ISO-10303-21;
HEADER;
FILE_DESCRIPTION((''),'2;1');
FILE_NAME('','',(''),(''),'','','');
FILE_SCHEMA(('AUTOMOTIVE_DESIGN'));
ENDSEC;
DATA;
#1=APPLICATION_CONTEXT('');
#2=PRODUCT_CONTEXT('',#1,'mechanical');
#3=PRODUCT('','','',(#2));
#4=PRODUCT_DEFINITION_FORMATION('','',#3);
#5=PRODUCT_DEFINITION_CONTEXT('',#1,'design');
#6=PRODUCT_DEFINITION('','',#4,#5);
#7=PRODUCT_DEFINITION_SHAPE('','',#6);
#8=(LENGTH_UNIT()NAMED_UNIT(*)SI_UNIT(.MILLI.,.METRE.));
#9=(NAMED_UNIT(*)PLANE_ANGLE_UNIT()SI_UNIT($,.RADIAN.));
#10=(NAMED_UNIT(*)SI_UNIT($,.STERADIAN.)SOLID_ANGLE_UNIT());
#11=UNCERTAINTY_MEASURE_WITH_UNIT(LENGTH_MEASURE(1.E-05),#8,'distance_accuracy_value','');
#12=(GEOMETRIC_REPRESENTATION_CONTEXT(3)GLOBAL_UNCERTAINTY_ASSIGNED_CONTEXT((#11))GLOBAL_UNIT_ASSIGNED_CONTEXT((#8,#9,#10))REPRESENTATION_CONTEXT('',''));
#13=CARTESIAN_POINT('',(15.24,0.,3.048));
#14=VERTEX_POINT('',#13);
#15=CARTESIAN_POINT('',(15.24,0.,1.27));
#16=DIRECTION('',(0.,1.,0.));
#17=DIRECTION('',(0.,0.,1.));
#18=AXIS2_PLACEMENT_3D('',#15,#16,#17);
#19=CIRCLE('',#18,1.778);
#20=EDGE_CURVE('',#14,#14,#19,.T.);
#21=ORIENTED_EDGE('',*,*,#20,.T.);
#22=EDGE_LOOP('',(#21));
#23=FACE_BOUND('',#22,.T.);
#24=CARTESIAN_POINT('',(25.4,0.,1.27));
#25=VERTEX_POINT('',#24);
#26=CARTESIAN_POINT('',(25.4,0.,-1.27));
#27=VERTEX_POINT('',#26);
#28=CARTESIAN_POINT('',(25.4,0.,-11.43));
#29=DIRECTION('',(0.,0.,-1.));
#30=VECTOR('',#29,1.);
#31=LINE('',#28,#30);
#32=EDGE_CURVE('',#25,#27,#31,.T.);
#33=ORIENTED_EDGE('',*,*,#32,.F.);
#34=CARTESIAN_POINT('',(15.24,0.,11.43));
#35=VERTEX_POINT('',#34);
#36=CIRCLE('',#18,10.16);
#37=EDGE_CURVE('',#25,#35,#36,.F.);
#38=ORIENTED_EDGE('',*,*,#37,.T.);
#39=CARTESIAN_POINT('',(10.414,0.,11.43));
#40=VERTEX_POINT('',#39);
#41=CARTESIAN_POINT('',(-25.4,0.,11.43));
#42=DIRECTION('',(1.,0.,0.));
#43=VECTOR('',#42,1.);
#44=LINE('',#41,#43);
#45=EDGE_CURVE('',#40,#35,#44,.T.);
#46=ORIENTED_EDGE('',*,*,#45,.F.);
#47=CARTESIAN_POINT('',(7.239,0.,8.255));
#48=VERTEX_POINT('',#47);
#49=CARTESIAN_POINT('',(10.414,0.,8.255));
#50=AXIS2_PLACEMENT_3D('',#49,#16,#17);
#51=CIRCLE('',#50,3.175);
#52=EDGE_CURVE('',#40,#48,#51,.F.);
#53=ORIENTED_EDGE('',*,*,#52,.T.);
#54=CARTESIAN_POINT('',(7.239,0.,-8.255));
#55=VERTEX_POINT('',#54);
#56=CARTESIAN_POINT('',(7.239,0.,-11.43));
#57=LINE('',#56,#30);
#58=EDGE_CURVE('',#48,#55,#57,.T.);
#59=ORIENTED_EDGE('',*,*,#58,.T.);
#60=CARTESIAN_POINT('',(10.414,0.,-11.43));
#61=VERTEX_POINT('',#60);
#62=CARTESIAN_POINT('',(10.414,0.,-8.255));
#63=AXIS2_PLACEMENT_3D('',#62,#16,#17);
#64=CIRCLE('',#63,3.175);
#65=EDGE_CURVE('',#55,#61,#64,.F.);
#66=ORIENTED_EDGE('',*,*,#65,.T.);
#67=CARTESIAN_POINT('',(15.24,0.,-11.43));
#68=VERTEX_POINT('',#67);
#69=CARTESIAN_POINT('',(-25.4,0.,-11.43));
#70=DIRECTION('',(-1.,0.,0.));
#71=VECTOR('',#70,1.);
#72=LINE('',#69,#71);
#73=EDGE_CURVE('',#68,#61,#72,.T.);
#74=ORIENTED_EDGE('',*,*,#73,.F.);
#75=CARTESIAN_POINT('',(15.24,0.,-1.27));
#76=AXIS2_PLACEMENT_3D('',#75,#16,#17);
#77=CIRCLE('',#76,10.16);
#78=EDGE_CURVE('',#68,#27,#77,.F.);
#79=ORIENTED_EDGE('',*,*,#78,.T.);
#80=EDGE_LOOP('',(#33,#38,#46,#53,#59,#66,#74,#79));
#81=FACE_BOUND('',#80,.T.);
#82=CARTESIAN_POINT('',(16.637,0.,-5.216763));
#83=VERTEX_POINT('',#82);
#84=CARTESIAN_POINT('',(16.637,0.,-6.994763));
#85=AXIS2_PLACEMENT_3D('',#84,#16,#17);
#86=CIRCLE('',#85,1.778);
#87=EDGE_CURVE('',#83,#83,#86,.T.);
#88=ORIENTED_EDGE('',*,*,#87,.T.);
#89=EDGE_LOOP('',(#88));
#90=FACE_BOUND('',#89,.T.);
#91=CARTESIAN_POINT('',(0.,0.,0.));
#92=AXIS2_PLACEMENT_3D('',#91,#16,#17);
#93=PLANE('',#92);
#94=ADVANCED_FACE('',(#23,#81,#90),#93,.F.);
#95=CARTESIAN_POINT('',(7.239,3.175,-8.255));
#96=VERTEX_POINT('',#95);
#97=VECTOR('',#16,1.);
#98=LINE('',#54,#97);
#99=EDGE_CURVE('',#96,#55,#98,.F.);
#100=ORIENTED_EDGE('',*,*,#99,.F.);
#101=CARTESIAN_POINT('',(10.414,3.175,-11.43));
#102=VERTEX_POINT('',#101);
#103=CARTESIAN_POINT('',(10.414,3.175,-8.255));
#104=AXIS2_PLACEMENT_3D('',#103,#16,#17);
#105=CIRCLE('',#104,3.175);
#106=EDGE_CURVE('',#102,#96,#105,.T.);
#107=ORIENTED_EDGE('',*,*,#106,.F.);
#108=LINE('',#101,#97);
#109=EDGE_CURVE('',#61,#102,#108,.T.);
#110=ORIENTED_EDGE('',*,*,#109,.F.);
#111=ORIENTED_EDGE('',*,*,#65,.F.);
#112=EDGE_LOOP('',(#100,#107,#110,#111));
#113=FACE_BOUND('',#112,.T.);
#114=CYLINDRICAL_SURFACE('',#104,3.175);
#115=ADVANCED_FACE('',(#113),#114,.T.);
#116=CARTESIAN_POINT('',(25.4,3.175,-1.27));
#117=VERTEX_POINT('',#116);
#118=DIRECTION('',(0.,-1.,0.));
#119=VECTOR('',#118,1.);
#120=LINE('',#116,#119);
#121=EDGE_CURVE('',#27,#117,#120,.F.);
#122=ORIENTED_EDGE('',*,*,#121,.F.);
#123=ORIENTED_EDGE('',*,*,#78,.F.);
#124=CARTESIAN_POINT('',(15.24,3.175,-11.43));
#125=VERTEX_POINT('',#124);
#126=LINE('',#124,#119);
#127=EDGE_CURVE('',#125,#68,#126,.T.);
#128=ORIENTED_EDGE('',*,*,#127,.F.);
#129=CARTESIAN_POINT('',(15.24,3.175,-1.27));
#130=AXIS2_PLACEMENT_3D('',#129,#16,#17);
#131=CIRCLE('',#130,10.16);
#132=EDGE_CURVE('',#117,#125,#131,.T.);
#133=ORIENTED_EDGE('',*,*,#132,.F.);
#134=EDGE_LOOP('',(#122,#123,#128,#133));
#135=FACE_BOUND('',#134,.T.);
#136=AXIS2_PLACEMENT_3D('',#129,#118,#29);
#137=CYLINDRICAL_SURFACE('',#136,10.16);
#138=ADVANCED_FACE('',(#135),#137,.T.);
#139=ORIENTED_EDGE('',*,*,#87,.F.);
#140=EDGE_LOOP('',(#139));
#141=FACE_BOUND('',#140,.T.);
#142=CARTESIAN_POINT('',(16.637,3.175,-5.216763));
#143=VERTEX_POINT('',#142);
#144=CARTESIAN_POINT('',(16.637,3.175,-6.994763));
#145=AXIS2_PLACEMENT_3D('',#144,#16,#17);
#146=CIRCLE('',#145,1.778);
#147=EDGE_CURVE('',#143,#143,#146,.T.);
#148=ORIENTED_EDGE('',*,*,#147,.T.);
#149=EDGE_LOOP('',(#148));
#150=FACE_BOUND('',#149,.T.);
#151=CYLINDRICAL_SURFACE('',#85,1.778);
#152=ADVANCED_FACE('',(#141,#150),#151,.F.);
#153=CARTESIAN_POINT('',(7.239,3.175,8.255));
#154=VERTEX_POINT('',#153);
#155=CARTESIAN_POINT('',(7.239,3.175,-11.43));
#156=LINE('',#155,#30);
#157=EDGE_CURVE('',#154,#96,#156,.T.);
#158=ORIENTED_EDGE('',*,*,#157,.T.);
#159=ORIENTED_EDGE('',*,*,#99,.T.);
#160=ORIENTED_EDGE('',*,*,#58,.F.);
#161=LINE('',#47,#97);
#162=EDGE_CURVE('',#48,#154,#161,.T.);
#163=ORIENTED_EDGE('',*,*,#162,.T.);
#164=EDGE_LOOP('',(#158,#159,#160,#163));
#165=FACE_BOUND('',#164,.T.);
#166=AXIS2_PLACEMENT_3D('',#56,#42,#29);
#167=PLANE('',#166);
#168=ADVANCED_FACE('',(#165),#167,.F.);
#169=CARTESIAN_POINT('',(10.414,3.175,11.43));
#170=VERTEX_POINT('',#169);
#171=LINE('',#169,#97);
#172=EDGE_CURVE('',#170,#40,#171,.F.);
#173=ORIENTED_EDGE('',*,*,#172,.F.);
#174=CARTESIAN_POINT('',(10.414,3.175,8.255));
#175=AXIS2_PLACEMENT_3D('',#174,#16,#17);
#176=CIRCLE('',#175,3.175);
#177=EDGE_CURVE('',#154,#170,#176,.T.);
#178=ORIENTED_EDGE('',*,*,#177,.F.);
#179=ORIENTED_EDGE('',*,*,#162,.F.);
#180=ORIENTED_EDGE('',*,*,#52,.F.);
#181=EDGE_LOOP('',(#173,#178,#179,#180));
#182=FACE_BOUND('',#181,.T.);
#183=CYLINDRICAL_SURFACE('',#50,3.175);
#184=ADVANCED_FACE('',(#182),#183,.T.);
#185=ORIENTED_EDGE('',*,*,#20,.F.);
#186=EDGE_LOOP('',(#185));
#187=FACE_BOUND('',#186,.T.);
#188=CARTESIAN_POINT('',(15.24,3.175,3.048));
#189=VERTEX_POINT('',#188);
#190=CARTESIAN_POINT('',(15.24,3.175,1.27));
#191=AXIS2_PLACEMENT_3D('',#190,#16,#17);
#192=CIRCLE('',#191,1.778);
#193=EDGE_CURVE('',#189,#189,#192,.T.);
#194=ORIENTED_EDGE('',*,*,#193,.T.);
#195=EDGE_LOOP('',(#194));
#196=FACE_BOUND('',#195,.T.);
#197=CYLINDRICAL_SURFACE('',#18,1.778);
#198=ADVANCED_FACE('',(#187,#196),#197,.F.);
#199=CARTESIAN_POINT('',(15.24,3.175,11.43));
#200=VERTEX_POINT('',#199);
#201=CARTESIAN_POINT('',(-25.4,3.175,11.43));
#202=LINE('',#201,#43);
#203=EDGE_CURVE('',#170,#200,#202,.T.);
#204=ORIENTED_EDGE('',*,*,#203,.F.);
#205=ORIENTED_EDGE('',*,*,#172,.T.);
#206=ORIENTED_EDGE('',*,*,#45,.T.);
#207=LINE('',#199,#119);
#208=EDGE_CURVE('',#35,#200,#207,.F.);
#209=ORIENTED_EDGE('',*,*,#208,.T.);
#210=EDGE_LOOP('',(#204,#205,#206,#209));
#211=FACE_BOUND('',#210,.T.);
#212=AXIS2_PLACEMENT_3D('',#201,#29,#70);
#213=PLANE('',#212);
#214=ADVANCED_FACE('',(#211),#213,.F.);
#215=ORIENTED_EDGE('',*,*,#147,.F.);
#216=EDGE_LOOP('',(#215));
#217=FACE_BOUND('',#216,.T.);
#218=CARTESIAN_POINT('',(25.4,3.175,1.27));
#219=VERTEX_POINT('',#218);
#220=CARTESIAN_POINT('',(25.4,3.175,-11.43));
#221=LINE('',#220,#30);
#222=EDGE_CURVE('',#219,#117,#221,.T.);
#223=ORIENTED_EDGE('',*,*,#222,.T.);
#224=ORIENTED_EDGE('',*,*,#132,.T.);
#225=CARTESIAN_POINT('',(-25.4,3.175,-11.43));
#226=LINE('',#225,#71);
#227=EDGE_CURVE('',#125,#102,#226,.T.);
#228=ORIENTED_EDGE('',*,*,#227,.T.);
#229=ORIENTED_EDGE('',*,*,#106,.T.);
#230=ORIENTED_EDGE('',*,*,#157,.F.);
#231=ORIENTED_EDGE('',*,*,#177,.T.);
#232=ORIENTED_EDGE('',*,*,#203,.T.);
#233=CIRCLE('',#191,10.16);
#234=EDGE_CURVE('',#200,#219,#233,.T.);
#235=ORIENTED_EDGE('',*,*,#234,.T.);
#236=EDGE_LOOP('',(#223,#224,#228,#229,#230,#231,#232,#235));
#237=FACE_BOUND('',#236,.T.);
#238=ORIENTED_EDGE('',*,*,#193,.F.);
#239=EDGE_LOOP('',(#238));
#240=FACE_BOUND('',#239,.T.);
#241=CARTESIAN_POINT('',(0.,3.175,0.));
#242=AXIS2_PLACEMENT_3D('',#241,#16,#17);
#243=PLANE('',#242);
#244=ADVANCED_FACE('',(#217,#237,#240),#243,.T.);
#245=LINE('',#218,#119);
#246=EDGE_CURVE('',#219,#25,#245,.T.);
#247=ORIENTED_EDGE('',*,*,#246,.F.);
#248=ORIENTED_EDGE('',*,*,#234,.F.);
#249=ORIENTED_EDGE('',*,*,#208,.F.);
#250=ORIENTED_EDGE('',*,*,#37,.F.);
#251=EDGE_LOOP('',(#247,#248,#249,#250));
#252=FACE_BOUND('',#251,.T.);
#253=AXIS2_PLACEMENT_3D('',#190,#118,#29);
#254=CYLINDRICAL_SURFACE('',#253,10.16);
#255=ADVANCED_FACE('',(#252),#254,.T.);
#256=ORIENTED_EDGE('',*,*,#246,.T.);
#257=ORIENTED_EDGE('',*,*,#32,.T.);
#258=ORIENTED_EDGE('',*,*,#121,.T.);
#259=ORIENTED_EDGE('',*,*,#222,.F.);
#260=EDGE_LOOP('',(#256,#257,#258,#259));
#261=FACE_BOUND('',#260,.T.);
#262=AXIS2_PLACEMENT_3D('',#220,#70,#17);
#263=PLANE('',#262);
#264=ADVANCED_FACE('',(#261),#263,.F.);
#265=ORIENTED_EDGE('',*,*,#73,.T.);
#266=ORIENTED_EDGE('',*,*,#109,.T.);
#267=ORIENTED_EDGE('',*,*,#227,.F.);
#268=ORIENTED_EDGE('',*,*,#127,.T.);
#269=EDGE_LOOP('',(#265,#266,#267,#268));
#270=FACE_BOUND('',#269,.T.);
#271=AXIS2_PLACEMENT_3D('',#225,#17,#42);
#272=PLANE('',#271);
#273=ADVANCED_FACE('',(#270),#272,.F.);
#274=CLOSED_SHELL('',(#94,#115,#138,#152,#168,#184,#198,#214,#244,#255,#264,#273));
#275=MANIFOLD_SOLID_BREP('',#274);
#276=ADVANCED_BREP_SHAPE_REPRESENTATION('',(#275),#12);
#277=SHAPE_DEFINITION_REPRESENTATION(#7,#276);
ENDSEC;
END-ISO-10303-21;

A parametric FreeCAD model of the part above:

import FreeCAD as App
import Part
import Sketcher
Q = App.Units.Quantity


def edges_at(feature, points):
    """Names of the edges that pass closest to the given points."""
    edges = feature.Shape.Edges
    near = lambda p: min(range(len(edges)), key=lambda i: edges[i].distToShape(Part.Vertex(*p))[0])
    return sorted({f"Edge{near(p) + 1}" for p in points})

doc = App.newDocument("Part")
body = doc.addObject("PartDesign::Body", "Body")

# Sketch on XZ plane
sketch1 = body.newObject("Sketcher::SketchObject", "Sketch")
sketch1.AttachmentSupport = (doc.getObject("XZ_Plane"), [""])
sketch1.MapMode = "FlatFace"
sketch1.addGeometry([
    Part.LineSegment(App.Vector(-25, -11, 0), App.Vector(-25, 11, 0)),
    Part.LineSegment(App.Vector(-25, 11, 0), App.Vector(25, 11, 0)),
    Part.LineSegment(App.Vector(25, 11, 0), App.Vector(25, -11, 0)),
    Part.LineSegment(App.Vector(25, -11, 0), App.Vector(-25, -11, 0)),
], False)
sketch1.addConstraint([
    Sketcher.Constraint("Coincident", 0, 2, 1, 1),
    Sketcher.Constraint("Coincident", 1, 2, 2, 1),
    Sketcher.Constraint("Coincident", 2, 2, 3, 1),
    Sketcher.Constraint("Coincident", 3, 2, 0, 1),
    Sketcher.Constraint("Vertical", 0),
    Sketcher.Constraint("Horizontal", 1),
    Sketcher.Constraint("Vertical", 2),
    Sketcher.Constraint("Horizontal", 3),
    Sketcher.Constraint("Symmetric", 0, 2, 2, 2, -1, 1),
    Sketcher.Constraint("DistanceX", 1, 1, 1, 2, Q("2 in")),
    Sketcher.Constraint("DistanceY", 0, 1, 0, 2, Q("0.9 in")),
])
pad1 = body.newObject("PartDesign::Pad", "Pad")
pad1.Profile = sketch1
pad1.Length = Q("0.125 in")
pad1.Reversed = True
doc.recompute()

fillet = body.newObject("PartDesign::Fillet", "Fillet")
fillet.Base = (pad1, edges_at(pad1, [(25.4, 1.587, 11.43), (-25.4, 1.587, 11.43)]))
fillet.Radius = Q("0.4 in")

# Sketch on XZ plane
sketch2 = body.newObject("Sketcher::SketchObject", "Sketch001")
sketch2.AttachmentSupport = (doc.getObject("XZ_Plane"), [""])
sketch2.MapMode = "FlatFace"
sketch2.AttachmentOffset = App.Placement(App.Vector(0, 0, -0.125 * 25.4), App.Rotation())
sketch2.addGeometry([
    Part.Circle(App.Vector(15.2, 1.3, 0), App.Vector(0, 0, 1), 1.8),
    Part.Circle(App.Vector(16.6, -7, 0), App.Vector(0, 0, 1), 1.8),
    Part.Circle(App.Vector(-3.8, 1.3, 0), App.Vector(0, 0, 1), 1.8),
], False)
sketch2.addConstraint([
    Sketcher.Constraint("Equal", 0, 1),
    Sketcher.Constraint("Equal", 1, 2),
    Sketcher.Constraint("Horizontal", 0, 3, 2, 3),
    Sketcher.Constraint("Diameter", 0, Q("0.14 in")),
    Sketcher.Constraint("DistanceX", -1, 1, 0, 3, Q("0.6 in")),
    Sketcher.Constraint("DistanceY", -1, 1, 0, 3, Q("0.05 in")),
    Sketcher.Constraint("DistanceX", 2, 3, -1, 1, Q("0.15 in")),
    Sketcher.Constraint("DistanceX", -1, 1, 1, 3, Q("0.655 in")),
    Sketcher.Constraint("DistanceY", 1, 3, -1, 1, Q("6.994763 mm")),
])
pocket1 = body.newObject("PartDesign::Pocket", "Pocket")
pocket1.Profile = sketch2
pocket1.Type = "ThroughAll"
pocket1.Reversed = True
doc.recompute()

fillet2 = body.newObject("PartDesign::Fillet", "Fillet001")
fillet2.Base = (pocket1, edges_at(pocket1, [(-25.4, 1.587, -11.43), (25.4, 1.587, -11.43)]))
fillet2.Radius = Q("0.4 in")

# Sketch on XZ plane
sketch3 = body.newObject("Sketcher::SketchObject", "Sketch002")
sketch3.AttachmentSupport = (doc.getObject("XZ_Plane"), [""])
sketch3.MapMode = "FlatFace"
sketch3.AttachmentOffset = App.Placement(App.Vector(0, 0, -0.125 * 25.4), App.Rotation())
sketch3.addGeometry([
    Part.LineSegment(App.Vector(-25, -11, 0), App.Vector(-25, 11, 0)),
    Part.LineSegment(App.Vector(-25, 11, 0), App.Vector(7, 11, 0)),
    Part.LineSegment(App.Vector(7, 11, 0), App.Vector(7, -11, 0)),
    Part.LineSegment(App.Vector(7, -11, 0), App.Vector(-25, -11, 0)),
], False)
sketch3.addConstraint([
    Sketcher.Constraint("Coincident", 0, 2, 1, 1),
    Sketcher.Constraint("Coincident", 1, 2, 2, 1),
    Sketcher.Constraint("Coincident", 2, 2, 3, 1),
    Sketcher.Constraint("Coincident", 3, 2, 0, 1),
    Sketcher.Constraint("Vertical", 0),
    Sketcher.Constraint("Horizontal", 1),
    Sketcher.Constraint("Vertical", 2),
    Sketcher.Constraint("Horizontal", 3),
    Sketcher.Constraint("DistanceY", 0, 1, 0, 2, Q("0.9 in")),
    Sketcher.Constraint("DistanceX", 0, 2, -1, 1, Q("1 in")),
    Sketcher.Constraint("DistanceX", 1, 1, 1, 2, Q("1.285 in")),
    Sketcher.Constraint("DistanceY", -1, 1, 0, 2, Q("0.45 in")),
])
pocket2 = body.newObject("PartDesign::Pocket", "Pocket001")
pocket2.Profile = sketch3
pocket2.Type = "ThroughAll"
pocket2.Reversed = True
doc.recompute()

fillet3 = body.newObject("PartDesign::Fillet", "Fillet002")
fillet3.Base = (pocket2, edges_at(pocket2, [(7.239, 1.587, -11.43), (7.239, 1.587, 11.43)]))
fillet3.Radius = Q("0.125 in")

doc.recompute()
